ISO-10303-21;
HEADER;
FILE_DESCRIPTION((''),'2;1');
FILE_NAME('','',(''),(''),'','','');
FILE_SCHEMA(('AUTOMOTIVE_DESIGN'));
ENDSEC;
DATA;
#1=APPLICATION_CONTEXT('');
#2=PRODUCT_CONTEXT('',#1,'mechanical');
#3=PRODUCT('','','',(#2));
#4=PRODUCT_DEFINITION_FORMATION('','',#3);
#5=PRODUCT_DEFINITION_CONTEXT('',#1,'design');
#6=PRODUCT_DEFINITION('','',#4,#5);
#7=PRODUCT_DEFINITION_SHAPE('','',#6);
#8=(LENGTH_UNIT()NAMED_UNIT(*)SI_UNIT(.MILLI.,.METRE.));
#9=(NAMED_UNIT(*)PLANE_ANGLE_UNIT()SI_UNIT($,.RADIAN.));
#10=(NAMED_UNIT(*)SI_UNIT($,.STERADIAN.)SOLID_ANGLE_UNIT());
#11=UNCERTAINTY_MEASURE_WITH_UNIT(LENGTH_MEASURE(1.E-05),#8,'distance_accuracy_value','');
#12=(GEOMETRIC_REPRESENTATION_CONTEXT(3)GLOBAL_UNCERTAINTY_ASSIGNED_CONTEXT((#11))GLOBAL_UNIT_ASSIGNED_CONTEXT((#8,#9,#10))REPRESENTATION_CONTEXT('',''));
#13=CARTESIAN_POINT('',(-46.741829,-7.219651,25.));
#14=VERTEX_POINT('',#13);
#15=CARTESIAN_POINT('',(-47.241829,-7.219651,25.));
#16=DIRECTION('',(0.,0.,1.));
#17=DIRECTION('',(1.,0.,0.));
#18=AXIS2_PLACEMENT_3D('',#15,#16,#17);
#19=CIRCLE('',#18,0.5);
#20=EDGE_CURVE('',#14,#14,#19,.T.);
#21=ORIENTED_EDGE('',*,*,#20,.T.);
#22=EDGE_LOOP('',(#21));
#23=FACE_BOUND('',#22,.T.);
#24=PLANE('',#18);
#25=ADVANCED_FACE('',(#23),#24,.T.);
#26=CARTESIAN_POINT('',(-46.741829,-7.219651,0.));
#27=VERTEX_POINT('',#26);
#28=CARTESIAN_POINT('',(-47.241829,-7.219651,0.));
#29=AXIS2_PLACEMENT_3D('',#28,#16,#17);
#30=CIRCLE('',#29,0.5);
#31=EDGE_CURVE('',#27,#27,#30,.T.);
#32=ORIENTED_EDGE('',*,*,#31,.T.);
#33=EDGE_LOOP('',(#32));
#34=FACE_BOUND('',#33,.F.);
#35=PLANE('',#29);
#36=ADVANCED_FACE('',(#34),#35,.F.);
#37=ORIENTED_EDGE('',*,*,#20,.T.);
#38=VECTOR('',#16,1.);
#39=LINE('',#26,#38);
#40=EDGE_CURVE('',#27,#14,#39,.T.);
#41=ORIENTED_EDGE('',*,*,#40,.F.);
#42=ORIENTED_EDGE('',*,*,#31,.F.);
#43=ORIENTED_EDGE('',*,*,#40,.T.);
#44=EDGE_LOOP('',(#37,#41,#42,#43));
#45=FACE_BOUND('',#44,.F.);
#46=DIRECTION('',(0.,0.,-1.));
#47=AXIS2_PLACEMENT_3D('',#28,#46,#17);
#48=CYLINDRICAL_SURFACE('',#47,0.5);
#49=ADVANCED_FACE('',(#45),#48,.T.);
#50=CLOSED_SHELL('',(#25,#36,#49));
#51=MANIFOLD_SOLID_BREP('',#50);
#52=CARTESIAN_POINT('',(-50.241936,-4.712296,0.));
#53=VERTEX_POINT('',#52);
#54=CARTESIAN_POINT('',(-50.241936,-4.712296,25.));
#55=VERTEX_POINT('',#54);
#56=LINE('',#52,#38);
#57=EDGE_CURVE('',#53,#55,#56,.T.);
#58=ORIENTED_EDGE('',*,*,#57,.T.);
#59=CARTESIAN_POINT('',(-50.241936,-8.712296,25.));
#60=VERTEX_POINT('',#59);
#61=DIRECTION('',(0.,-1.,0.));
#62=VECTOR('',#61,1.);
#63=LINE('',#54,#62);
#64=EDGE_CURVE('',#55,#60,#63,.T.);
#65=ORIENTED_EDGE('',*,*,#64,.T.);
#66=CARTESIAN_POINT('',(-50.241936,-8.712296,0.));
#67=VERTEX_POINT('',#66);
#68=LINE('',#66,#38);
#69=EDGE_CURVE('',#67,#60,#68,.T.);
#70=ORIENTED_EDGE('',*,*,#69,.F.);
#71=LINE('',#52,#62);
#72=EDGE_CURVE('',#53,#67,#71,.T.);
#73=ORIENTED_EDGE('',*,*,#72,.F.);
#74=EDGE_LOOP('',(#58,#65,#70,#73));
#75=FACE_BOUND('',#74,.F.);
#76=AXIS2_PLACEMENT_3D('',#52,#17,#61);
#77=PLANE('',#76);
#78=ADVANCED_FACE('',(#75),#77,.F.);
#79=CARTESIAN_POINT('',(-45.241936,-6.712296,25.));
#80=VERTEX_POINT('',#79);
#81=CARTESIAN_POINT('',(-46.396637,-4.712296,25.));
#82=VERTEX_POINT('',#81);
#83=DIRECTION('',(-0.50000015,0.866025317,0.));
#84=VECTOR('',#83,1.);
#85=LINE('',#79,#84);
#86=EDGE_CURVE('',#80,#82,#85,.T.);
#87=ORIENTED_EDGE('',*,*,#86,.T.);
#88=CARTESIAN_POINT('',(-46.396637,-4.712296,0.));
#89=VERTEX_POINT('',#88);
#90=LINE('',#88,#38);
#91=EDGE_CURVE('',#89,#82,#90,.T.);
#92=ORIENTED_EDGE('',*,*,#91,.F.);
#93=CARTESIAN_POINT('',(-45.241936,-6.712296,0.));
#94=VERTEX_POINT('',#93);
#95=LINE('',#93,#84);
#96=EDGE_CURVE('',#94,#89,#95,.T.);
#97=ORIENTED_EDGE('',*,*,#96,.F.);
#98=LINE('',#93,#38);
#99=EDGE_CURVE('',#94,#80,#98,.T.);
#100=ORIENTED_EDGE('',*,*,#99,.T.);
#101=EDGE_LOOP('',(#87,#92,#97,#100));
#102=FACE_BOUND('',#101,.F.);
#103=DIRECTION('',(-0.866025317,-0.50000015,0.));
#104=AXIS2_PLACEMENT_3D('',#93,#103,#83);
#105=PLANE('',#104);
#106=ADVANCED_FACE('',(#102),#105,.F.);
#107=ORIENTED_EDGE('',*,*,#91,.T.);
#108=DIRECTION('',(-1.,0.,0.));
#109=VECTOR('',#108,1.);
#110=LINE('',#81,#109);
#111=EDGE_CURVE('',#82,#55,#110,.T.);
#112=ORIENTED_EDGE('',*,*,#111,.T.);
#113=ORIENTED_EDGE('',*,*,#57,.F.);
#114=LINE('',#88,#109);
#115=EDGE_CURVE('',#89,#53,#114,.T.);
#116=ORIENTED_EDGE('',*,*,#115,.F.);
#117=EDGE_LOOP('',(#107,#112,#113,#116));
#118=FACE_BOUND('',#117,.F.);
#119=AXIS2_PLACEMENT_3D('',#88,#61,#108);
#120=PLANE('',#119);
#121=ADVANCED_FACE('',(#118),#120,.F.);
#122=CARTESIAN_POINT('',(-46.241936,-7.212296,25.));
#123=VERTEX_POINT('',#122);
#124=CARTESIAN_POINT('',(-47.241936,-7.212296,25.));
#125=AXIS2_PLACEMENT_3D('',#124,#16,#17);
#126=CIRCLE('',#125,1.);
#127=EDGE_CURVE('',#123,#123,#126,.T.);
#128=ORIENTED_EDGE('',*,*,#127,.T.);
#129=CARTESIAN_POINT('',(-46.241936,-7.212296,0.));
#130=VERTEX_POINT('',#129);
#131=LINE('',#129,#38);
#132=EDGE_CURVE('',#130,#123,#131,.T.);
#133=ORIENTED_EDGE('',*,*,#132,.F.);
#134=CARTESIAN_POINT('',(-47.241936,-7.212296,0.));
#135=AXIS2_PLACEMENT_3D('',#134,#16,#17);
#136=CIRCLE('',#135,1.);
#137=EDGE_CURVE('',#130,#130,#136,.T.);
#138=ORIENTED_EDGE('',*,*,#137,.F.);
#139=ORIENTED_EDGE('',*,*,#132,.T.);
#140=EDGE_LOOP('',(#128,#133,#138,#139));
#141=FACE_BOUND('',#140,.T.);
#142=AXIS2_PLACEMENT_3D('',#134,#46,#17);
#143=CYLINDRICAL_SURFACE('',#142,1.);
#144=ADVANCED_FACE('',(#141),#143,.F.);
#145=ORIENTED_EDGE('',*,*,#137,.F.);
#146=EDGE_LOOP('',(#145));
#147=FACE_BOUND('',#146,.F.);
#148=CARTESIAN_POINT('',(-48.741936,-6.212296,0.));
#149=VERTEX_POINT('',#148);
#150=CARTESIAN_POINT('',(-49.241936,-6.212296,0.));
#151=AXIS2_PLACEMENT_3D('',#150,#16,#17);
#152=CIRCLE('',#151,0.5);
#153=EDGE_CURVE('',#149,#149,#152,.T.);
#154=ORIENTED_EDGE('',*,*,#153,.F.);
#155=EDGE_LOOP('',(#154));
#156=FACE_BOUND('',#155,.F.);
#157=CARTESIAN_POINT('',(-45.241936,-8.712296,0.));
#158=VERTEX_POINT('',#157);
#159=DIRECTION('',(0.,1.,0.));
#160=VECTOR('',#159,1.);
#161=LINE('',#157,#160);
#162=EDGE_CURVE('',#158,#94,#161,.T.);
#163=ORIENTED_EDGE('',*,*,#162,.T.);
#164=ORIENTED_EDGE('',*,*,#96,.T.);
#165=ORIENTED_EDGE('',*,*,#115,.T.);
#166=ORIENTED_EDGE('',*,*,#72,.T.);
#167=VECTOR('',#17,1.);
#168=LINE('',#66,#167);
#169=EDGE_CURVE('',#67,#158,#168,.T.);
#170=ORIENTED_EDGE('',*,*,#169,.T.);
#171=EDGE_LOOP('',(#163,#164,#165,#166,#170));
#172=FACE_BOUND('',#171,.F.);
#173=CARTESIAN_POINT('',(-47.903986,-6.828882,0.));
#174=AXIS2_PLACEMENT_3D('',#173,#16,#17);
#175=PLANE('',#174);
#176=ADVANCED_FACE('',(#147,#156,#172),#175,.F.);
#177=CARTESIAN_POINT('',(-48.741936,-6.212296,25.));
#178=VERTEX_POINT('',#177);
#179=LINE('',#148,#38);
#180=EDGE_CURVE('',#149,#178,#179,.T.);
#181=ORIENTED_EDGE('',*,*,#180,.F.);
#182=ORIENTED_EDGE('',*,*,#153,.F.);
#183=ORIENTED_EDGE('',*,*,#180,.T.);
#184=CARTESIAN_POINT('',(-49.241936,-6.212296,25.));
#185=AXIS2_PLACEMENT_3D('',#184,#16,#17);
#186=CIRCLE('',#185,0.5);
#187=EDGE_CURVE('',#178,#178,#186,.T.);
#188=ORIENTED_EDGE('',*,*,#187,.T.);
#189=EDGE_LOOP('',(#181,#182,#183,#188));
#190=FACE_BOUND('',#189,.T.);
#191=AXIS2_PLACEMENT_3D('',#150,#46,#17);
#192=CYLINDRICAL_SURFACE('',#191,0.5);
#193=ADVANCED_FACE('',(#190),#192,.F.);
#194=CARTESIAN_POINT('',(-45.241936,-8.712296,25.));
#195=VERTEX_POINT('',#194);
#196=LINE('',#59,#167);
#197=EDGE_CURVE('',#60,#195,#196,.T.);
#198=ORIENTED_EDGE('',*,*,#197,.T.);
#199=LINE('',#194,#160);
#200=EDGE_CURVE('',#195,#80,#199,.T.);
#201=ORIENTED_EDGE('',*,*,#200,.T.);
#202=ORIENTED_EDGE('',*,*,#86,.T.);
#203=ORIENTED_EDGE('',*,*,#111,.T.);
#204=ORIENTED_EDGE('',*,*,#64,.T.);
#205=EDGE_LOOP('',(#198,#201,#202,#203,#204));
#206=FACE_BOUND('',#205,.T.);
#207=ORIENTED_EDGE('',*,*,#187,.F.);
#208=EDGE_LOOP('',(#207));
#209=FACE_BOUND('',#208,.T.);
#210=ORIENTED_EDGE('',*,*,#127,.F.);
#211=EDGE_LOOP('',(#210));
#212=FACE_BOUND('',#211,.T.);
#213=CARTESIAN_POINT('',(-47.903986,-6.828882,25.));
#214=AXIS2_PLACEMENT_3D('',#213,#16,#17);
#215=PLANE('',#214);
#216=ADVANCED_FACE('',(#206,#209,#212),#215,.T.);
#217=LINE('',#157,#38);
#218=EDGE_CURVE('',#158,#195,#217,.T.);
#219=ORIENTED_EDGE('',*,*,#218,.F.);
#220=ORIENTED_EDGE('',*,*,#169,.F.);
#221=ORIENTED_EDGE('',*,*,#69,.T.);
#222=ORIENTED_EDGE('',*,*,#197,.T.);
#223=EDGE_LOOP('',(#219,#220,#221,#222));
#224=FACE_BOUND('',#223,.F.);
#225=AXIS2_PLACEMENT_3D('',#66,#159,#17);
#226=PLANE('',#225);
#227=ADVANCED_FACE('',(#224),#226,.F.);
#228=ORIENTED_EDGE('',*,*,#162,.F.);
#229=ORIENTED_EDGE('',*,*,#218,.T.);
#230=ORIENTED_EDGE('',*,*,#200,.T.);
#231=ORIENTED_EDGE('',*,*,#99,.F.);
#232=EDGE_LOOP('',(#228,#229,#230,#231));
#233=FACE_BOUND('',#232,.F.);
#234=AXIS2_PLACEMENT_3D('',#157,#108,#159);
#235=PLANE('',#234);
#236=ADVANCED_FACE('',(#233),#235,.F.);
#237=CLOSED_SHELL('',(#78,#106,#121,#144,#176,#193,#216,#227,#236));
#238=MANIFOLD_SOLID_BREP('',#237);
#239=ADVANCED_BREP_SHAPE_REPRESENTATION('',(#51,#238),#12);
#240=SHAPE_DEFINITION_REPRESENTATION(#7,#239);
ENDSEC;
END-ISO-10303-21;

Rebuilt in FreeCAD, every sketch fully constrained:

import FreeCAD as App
import Part
import Sketcher

V = App.Vector
Q = App.Units.Quantity


def add_polygon(sketch, points):
    """Adds a closed chain of lines whose ends are joined by coincident constraints."""
    first, n = sketch.GeometryCount, len(points)
    for a, b in zip(points, points[1:] + points[:1]):
        sketch.addGeometry(Part.LineSegment(App.Vector(*a, 0), App.Vector(*b, 0)), False)
    for i in range(n):
        sketch.addConstraint(Sketcher.Constraint("Coincident", first + i, 2, first + (i + 1) % n, 1))

doc = App.newDocument("Part")
body = doc.addObject("PartDesign::Body", "Body")

sketch1 = doc.addObject("Sketcher::SketchObject", "Sketch")
body.addObject(sketch1)
sketch1.AttachmentSupport = (doc.XY_Plane, [""])
sketch1.MapMode = "FlatFace"
add_polygon(sketch1, [(-50.2, -8.7), (-45.2, -8.7), (-45.2, -6.7), (-46.4, -4.7), (-50.2, -4.7)])
sketch1.addGeometry(Part.Circle(V(-47.2, -7.2, 0), V(0, 0, 1), 1), False)
sketch1.addGeometry(Part.Circle(V(-49.2, -6.2, 0), V(0, 0, 1), 0.5), False)
sketch1.addConstraint(Sketcher.Constraint("Horizontal", 0))
sketch1.addConstraint(Sketcher.Constraint("Vertical", 1))
sketch1.addConstraint(Sketcher.Constraint("Horizontal", 3))
sketch1.addConstraint(Sketcher.Constraint("Vertical", 4))
sketch1.addConstraint(Sketcher.Constraint("Diameter", 5, 2.0))
sketch1.addConstraint(Sketcher.Constraint("Diameter", 6, 1.0))
sketch1.addConstraint(Sketcher.Constraint("DistanceX", 0, 1, 0, 2, 5.0))
sketch1.addConstraint(Sketcher.Constraint("DistanceY", 1, 1, 1, 2, 2.0))
sketch1.addConstraint(Sketcher.Constraint("DistanceY", 4, 2, 4, 1, 4.0))
sketch1.addConstraint(Sketcher.Constraint("Angle", 2, Q("120.00001 deg")))
sketch1.addConstraint(Sketcher.Constraint("DistanceX", 6, 3, 5, 3, 2.0))
sketch1.addConstraint(Sketcher.Constraint("DistanceY", 5, 3, 6, 3, 1.0))
sketch1.addConstraint(Sketcher.Constraint("DistanceX", 5, 3, 0, 2, 2.0))
sketch1.addConstraint(Sketcher.Constraint("DistanceY", 0, 2, 5, 3, 1.5))
sketch1.addConstraint(Sketcher.Constraint("DistanceX", 5, 3, -1, 1, 47.241936))
sketch1.addConstraint(Sketcher.Constraint("DistanceY", 5, 3, -1, 1, 7.212296))
pad1 = doc.addObject("PartDesign::Pad", "Pad")
body.addObject(pad1)
pad1.Profile = sketch1
pad1.Length = 25
body2 = doc.addObject("PartDesign::Body", "Body001")

sketch2 = doc.addObject("Sketcher::SketchObject", "Sketch001")
body2.addObject(sketch2)
sketch2.AttachmentSupport = (doc.getObject("XY_Plane001"), [""])
sketch2.MapMode = "FlatFace"
sketch2.addGeometry(Part.Circle(V(-47.2, -7.2, 0), V(0, 0, 1), 0.5), False)
sketch2.addConstraint(Sketcher.Constraint("Diameter", 0, 1.0))
sketch2.addConstraint(Sketcher.Constraint("DistanceX", 0, 3, -1, 1, 47.241829))
sketch2.addConstraint(Sketcher.Constraint("DistanceY", 0, 3, -1, 1, 7.219651))
pad2 = doc.addObject("PartDesign::Pad", "Pad001")
body2.addObject(pad2)
pad2.Profile = sketch2
pad2.Length = 25

doc.recompute()
